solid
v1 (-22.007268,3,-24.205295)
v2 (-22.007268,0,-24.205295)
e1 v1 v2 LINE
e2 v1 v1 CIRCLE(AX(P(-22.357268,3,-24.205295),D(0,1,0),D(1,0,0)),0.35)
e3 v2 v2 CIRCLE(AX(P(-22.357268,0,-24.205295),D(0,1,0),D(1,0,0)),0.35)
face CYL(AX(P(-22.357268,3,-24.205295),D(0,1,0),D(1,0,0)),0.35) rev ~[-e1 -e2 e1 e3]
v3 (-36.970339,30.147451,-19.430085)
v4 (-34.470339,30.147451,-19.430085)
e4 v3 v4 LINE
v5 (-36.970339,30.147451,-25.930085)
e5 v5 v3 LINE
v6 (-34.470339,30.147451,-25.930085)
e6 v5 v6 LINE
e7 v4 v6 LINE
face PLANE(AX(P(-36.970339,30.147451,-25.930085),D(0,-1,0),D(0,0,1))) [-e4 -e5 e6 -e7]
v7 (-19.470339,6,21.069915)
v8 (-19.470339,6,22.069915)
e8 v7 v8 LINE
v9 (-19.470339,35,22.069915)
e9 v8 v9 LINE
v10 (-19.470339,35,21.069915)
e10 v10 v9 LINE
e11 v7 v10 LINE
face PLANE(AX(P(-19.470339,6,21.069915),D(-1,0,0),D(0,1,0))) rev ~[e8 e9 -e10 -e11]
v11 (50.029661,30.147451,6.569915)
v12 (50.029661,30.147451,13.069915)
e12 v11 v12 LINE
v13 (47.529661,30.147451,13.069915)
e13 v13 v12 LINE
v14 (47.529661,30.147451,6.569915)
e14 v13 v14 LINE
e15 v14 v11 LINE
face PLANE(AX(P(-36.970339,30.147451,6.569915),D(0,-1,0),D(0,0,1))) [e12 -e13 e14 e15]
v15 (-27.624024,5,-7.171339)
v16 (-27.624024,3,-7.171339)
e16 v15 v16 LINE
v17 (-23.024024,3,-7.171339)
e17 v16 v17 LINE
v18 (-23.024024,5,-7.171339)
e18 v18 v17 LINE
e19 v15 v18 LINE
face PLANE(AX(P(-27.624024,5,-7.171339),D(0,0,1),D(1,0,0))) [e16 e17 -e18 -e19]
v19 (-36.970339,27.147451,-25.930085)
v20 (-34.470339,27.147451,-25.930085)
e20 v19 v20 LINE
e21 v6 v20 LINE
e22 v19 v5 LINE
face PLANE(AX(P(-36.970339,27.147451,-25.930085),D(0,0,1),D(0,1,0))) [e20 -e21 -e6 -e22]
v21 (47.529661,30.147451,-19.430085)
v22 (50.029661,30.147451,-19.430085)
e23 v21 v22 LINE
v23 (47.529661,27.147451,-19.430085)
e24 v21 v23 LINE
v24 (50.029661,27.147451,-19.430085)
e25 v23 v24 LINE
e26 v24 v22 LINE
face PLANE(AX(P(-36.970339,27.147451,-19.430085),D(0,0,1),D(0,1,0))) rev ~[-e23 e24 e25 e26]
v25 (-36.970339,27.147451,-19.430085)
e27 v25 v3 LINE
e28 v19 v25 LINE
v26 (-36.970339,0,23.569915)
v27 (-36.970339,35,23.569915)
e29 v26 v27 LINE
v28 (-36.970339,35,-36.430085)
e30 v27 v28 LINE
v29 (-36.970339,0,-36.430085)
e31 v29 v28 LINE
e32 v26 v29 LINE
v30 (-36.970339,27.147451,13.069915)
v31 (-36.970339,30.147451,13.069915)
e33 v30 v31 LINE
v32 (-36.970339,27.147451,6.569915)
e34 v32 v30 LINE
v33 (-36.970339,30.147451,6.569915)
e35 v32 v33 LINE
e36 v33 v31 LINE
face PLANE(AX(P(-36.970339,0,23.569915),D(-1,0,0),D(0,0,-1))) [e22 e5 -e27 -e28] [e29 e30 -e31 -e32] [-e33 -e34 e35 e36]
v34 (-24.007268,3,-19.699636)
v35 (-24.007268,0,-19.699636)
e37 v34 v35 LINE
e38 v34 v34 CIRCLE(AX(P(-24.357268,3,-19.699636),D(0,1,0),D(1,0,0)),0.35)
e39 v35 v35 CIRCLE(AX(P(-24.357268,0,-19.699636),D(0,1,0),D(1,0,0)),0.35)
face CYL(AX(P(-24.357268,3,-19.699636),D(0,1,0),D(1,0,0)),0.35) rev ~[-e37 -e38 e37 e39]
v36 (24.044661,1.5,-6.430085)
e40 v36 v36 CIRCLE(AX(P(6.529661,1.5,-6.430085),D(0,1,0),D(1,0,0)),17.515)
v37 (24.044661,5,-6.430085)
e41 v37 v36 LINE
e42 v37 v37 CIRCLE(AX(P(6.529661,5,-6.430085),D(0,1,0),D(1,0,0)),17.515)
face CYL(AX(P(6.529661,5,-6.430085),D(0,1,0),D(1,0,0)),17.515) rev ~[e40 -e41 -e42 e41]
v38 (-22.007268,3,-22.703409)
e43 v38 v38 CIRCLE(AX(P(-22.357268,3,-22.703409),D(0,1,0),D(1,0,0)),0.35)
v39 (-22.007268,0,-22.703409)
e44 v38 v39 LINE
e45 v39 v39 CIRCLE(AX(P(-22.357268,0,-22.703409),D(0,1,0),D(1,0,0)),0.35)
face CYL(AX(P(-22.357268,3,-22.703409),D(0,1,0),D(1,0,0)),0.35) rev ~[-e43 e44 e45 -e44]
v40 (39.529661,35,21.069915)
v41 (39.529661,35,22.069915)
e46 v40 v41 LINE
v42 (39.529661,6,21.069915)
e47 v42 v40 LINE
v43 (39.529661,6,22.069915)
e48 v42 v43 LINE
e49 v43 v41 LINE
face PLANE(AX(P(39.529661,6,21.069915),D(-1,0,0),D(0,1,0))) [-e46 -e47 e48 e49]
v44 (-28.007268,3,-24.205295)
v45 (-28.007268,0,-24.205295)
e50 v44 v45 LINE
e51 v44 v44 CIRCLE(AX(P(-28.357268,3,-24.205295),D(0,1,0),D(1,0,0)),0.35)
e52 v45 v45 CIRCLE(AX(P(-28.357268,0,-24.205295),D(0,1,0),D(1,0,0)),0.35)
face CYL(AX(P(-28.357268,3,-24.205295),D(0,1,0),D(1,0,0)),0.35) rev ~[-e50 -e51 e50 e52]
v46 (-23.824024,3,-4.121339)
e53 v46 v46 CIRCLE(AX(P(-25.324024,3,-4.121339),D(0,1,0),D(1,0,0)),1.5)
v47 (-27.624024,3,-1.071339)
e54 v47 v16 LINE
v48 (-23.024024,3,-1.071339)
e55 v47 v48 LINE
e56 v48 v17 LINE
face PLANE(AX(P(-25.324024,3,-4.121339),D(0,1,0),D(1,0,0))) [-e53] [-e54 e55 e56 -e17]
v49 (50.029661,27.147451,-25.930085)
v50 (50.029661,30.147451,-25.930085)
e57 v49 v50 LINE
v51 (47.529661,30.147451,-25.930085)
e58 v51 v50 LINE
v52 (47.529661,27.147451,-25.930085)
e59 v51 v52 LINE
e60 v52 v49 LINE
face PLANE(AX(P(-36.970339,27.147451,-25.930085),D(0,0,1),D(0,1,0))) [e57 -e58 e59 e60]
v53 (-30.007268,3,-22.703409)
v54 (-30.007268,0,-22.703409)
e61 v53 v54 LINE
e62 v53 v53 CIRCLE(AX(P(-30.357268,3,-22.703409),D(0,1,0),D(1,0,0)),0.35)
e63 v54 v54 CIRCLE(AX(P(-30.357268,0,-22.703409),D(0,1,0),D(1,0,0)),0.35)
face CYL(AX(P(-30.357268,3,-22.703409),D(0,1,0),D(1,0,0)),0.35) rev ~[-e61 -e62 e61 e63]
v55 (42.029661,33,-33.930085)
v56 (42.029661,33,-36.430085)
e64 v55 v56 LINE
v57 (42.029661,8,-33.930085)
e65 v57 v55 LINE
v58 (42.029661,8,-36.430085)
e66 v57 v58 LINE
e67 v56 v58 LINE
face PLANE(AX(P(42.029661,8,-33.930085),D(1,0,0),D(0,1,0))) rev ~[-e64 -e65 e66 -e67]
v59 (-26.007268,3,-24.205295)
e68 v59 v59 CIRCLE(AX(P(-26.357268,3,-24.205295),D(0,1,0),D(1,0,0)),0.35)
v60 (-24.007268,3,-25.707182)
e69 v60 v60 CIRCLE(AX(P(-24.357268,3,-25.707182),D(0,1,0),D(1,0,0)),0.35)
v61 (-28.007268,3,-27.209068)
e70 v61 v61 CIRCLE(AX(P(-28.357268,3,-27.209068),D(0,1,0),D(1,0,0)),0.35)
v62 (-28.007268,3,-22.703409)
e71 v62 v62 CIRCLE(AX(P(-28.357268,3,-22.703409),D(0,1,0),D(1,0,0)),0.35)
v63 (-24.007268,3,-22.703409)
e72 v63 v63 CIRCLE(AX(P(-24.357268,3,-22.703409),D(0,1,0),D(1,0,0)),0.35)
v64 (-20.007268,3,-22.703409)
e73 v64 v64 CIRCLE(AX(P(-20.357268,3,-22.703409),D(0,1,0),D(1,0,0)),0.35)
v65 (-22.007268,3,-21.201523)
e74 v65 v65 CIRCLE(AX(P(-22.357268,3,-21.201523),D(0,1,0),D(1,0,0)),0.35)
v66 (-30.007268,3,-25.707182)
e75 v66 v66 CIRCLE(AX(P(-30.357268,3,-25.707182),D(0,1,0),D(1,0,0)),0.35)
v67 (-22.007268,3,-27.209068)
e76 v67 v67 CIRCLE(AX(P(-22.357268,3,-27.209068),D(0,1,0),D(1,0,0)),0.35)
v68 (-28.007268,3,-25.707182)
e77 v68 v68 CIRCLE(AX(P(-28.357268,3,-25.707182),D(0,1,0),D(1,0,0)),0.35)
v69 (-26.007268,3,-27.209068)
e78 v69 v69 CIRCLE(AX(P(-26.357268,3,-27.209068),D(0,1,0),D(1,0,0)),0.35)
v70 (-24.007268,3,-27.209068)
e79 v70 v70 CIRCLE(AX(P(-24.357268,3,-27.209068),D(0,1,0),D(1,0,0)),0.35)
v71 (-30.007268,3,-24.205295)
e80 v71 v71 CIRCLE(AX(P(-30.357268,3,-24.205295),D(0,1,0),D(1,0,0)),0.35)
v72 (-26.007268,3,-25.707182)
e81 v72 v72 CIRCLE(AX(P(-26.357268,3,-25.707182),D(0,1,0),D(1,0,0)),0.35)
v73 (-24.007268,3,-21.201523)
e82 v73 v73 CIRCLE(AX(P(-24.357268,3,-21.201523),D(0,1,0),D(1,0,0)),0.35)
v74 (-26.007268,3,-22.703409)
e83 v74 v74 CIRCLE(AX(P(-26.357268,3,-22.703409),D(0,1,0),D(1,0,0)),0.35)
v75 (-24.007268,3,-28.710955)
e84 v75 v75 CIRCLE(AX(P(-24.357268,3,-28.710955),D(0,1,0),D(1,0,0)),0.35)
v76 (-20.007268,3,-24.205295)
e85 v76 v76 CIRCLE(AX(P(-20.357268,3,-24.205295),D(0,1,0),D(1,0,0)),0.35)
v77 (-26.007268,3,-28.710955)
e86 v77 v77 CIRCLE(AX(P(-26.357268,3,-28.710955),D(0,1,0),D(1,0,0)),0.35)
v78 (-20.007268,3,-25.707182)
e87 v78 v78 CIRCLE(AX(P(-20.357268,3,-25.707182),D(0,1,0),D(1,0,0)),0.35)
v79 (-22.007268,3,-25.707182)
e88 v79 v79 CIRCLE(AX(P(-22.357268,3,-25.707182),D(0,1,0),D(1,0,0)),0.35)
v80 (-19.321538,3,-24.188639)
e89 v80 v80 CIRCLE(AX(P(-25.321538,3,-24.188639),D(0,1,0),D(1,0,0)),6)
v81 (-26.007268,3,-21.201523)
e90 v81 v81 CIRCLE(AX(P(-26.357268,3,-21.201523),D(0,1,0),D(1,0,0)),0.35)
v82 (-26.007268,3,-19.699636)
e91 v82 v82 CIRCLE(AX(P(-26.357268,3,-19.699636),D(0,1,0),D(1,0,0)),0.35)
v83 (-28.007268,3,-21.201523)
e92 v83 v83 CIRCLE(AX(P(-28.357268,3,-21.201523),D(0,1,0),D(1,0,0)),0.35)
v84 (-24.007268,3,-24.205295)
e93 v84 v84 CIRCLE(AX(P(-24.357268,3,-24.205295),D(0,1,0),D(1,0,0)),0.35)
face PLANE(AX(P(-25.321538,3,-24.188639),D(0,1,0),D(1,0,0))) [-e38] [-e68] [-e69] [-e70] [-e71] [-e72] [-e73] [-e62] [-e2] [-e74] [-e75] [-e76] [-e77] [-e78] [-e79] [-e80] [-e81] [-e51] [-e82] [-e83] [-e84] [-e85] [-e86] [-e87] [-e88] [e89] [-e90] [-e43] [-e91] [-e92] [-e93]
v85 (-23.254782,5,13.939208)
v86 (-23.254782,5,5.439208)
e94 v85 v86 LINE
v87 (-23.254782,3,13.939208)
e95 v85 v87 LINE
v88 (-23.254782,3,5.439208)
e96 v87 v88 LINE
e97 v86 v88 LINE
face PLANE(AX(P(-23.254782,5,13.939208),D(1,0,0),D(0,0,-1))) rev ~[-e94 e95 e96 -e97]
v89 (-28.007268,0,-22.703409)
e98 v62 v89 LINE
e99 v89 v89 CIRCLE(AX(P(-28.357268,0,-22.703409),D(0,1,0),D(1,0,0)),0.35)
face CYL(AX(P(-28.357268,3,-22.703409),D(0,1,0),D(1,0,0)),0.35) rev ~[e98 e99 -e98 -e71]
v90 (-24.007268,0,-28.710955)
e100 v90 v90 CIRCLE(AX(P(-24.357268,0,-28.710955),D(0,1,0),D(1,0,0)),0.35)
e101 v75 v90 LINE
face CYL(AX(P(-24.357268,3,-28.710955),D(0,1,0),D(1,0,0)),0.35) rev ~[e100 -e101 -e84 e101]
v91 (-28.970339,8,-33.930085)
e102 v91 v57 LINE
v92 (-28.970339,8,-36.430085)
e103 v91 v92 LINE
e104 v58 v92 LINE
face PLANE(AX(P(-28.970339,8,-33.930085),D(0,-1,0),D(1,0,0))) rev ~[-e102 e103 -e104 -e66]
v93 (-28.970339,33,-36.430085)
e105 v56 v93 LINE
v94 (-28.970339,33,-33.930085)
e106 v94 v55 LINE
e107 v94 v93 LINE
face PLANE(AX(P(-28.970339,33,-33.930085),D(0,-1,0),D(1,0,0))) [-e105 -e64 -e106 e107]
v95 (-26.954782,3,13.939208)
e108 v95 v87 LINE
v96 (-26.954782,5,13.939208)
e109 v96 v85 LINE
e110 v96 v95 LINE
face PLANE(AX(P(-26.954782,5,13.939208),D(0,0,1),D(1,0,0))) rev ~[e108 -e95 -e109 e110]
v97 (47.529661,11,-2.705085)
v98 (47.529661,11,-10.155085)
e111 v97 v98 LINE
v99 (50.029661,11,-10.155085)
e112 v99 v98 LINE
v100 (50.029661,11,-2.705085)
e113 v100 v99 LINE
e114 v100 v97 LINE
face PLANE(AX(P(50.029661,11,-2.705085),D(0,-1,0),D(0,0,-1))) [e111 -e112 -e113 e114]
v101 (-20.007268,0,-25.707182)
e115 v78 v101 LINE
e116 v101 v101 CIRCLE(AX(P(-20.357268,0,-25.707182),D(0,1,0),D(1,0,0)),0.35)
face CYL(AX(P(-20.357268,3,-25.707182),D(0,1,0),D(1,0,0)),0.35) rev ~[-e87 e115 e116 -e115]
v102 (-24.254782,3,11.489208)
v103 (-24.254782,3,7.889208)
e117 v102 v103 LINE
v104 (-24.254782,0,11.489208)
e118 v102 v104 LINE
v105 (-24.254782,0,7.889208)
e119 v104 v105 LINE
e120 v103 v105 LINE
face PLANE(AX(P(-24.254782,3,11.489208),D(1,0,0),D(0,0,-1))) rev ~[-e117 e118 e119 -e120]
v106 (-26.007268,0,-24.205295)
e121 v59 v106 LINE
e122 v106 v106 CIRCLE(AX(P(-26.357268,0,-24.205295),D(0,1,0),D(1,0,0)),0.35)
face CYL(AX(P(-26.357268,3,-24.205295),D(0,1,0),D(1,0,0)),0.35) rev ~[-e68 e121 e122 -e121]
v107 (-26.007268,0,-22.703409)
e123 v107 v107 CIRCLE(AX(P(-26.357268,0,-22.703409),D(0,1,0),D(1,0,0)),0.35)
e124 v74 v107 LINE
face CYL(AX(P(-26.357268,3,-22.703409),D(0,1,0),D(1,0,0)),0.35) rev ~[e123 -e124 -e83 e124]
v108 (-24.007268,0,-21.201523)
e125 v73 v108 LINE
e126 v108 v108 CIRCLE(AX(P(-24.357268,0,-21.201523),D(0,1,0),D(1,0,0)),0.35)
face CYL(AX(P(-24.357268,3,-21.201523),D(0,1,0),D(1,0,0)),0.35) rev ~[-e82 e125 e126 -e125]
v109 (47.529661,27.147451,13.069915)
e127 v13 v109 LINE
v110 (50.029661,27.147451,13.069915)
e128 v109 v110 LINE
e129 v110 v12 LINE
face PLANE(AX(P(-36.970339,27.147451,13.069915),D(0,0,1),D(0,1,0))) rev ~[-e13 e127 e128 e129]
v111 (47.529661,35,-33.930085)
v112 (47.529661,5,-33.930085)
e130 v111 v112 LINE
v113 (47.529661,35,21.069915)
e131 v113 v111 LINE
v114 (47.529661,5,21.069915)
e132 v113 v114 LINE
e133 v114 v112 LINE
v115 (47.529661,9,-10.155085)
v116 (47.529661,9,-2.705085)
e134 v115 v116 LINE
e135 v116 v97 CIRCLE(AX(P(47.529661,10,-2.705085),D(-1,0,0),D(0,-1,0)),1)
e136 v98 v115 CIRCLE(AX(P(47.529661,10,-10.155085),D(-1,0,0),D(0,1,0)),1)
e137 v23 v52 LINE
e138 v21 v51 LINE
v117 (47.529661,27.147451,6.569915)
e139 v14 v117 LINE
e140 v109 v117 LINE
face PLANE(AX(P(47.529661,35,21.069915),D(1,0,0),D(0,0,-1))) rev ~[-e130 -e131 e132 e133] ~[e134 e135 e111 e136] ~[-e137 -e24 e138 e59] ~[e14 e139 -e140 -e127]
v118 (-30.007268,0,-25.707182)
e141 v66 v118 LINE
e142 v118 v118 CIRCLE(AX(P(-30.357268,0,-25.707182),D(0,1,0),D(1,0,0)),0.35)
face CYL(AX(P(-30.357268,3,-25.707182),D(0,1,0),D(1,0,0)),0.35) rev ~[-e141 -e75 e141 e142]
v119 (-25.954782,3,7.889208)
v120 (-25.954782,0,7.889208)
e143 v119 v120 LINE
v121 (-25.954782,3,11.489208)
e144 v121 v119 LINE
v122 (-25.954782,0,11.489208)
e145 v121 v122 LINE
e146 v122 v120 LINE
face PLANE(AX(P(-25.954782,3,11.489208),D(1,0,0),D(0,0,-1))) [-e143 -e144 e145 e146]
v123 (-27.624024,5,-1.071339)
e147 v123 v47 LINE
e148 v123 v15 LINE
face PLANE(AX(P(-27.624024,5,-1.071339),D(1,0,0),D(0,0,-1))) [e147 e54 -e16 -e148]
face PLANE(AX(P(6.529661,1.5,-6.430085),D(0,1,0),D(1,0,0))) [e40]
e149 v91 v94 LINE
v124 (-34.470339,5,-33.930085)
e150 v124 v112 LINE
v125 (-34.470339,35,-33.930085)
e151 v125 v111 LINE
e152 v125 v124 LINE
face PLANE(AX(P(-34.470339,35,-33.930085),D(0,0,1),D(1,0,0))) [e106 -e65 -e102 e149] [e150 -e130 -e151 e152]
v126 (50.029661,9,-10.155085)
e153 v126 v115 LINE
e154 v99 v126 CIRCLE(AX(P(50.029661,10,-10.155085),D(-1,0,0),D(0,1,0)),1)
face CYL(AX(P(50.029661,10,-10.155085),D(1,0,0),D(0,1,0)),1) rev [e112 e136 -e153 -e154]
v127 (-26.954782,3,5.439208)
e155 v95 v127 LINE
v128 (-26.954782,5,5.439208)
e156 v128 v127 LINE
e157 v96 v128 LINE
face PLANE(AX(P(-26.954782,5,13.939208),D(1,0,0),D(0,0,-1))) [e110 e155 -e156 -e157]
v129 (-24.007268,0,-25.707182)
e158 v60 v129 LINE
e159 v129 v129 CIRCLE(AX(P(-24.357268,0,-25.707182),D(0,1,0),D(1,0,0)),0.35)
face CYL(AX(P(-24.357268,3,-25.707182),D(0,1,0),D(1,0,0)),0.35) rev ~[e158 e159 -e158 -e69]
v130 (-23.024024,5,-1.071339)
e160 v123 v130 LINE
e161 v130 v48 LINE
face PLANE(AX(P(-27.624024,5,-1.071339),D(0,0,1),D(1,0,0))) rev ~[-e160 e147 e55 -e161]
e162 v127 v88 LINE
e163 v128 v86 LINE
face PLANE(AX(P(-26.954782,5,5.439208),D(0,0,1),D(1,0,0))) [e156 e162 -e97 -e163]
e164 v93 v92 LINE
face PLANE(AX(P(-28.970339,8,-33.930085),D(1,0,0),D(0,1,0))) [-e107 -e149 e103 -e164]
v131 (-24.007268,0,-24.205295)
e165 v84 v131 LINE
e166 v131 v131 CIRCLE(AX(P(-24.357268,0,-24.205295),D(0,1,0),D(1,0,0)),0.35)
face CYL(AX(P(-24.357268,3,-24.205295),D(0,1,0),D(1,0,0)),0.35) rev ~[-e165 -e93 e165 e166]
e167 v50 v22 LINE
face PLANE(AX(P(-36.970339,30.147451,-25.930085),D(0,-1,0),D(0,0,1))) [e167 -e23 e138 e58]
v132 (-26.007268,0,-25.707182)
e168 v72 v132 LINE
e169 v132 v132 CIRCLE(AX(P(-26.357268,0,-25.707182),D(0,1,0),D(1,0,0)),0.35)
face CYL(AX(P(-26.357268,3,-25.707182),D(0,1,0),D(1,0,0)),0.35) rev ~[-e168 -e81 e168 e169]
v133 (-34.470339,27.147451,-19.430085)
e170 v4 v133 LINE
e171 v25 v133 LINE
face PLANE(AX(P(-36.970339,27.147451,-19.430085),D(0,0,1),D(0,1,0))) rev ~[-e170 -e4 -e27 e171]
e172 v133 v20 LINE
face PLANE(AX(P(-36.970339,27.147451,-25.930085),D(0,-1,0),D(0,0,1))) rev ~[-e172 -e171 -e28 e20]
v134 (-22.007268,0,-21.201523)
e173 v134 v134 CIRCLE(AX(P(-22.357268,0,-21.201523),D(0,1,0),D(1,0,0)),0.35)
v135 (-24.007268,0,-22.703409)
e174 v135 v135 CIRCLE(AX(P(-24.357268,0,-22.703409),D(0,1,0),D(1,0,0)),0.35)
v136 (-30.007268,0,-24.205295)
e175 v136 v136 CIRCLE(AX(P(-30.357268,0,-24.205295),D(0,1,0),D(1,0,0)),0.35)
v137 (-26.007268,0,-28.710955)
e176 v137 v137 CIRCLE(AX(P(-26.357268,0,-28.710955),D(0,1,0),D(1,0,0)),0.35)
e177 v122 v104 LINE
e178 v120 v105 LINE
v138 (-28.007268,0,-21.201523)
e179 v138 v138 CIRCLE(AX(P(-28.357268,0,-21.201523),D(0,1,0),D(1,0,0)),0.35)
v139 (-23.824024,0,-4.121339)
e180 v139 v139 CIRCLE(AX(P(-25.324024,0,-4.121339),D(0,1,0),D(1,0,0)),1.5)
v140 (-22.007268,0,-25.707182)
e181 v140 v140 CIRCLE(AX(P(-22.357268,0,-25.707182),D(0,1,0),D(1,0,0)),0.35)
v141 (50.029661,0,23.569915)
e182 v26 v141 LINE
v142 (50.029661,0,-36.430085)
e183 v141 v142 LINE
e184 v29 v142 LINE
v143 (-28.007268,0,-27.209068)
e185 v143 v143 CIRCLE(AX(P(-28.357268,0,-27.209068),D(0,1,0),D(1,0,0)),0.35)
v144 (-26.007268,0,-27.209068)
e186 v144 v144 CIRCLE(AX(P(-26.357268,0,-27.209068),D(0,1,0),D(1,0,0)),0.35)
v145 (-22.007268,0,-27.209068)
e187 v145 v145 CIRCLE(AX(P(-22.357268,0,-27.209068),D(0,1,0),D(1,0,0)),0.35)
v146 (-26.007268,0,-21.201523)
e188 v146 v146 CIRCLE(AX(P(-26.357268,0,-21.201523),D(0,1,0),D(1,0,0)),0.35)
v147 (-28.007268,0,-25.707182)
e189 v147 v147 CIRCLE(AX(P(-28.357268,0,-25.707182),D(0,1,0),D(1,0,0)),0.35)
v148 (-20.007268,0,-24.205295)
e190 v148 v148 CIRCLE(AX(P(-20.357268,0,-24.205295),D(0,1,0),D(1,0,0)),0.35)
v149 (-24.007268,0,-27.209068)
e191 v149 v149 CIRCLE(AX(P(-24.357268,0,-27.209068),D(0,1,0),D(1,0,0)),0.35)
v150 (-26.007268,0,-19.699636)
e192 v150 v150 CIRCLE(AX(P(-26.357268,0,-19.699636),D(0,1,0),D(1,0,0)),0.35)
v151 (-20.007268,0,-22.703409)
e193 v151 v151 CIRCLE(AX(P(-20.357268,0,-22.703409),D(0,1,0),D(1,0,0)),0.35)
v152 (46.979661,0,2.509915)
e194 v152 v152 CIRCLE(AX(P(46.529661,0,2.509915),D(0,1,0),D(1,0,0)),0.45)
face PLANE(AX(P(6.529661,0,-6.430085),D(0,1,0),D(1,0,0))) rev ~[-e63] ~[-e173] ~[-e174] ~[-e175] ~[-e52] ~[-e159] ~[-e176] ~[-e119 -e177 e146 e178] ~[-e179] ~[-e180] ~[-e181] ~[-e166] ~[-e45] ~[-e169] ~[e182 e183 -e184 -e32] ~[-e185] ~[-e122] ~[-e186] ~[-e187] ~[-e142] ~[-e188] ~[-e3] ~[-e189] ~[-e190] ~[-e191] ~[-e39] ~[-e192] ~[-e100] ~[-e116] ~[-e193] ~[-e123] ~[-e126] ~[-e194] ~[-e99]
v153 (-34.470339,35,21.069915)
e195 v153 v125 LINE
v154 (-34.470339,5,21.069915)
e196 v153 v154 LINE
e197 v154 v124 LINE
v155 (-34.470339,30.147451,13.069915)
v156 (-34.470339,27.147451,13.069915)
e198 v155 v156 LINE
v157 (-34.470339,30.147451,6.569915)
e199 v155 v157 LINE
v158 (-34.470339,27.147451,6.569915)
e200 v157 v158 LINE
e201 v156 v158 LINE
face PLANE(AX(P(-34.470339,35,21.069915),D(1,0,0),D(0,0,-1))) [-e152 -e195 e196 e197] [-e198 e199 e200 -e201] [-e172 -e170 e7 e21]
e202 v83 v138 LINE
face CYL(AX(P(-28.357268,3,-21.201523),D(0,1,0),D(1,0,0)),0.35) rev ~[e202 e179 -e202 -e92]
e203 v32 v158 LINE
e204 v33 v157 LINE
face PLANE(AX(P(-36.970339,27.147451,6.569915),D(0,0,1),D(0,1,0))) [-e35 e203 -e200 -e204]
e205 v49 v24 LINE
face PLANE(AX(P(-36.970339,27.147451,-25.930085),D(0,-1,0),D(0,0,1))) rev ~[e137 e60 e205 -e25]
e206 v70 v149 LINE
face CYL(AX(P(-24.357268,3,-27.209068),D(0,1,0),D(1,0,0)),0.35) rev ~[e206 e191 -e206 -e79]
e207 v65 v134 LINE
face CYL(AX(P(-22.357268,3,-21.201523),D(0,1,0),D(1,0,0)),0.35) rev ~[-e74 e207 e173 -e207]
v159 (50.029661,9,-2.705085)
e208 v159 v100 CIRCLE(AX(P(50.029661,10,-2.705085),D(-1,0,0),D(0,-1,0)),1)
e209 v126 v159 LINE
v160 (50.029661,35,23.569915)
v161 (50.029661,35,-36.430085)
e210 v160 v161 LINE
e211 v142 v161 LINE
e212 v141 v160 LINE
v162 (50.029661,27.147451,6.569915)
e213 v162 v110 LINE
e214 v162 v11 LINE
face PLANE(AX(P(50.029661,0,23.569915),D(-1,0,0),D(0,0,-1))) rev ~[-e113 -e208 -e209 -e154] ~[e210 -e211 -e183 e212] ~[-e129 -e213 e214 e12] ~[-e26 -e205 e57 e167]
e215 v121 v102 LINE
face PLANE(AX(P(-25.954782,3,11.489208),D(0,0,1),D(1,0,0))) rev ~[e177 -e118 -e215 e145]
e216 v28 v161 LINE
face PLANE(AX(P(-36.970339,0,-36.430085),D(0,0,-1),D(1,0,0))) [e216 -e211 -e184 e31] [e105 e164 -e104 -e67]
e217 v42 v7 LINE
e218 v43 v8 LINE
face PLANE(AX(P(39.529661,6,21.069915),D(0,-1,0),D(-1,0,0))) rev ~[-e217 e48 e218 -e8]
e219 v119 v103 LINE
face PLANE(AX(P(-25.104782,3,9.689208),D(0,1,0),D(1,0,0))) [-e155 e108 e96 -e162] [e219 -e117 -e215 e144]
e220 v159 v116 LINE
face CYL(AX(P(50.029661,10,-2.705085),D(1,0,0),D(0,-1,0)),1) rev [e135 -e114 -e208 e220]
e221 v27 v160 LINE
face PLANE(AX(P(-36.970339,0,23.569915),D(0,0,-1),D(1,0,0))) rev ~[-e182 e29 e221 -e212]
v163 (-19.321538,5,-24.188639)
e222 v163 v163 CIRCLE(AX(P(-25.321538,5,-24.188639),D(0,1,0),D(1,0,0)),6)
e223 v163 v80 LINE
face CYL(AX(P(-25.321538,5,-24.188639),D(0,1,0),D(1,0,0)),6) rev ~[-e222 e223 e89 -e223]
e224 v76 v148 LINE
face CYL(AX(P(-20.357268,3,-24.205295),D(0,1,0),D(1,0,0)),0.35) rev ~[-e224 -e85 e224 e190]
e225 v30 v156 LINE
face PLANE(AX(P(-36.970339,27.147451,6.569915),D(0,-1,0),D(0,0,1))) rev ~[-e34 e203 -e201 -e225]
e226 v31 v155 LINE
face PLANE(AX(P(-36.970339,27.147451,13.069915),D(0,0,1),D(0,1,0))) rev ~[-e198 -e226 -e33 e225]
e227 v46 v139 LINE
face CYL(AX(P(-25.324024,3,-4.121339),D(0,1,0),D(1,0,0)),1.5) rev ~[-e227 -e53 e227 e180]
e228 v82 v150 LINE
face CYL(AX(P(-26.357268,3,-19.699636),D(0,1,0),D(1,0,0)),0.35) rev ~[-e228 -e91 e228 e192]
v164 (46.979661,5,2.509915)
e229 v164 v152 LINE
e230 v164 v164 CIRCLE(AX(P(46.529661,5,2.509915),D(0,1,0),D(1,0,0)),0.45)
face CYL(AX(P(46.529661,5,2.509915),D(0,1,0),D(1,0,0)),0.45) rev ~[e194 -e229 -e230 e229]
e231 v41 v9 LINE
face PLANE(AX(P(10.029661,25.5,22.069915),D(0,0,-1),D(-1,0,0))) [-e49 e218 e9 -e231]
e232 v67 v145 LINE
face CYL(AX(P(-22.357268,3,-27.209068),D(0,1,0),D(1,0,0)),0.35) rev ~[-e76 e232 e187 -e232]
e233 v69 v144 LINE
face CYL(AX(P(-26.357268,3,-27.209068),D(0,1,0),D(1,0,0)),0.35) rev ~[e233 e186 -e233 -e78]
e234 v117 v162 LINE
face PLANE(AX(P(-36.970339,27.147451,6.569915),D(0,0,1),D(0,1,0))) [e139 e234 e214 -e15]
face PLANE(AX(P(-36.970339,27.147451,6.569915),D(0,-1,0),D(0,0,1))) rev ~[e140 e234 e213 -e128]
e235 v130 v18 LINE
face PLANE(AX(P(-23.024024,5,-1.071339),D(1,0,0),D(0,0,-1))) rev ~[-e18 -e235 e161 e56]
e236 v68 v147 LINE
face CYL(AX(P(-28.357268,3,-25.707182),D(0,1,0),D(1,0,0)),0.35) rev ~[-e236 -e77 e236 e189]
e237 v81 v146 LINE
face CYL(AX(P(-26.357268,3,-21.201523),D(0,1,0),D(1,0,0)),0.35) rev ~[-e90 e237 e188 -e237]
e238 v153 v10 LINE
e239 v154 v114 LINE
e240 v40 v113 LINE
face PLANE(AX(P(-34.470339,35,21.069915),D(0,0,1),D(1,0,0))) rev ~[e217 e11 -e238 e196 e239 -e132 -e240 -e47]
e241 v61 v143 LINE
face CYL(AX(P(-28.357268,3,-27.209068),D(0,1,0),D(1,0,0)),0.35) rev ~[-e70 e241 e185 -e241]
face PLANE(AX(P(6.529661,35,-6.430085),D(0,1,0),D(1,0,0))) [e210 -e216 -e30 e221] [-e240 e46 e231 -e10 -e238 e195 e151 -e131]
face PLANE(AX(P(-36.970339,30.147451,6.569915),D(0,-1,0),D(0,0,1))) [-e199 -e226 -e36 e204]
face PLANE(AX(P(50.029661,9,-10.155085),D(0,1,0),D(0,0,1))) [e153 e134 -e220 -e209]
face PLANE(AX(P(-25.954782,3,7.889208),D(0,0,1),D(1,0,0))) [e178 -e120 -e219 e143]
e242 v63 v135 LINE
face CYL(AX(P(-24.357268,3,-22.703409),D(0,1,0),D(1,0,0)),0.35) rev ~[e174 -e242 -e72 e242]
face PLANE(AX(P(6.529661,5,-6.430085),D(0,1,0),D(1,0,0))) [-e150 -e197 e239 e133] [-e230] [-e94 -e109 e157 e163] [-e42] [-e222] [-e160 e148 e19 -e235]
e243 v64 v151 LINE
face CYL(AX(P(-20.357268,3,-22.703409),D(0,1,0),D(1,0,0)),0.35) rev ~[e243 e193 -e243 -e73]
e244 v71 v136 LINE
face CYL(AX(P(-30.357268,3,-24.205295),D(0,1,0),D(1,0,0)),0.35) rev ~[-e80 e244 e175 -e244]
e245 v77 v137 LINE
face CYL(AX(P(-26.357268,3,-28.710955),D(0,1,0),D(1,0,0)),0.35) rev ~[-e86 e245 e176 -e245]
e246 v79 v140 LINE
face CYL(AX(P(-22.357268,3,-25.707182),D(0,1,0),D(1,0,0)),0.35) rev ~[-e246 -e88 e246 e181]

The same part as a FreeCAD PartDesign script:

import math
import FreeCAD as App
import Part
import Sketcher

doc = App.newDocument("Part")
body = doc.addObject("PartDesign::Body", "Body")

# Sketch on XZ plane
sketch1 = doc.addObject("Sketcher::SketchObject", "Sketch")
body.addObject(sketch1)
sketch1.AttachmentSupport = (doc.XZ_Plane, [""])
sketch1.MapMode = "FlatFace"
sketch1.addGeometry(Part.LineSegment(App.Vector(-37, -36, 0), App.Vector(-37, 24, 0)), False)
sketch1.addGeometry(Part.LineSegment(App.Vector(-37, 24, 0), App.Vector(50, 24, 0)), False)
sketch1.addGeometry(Part.LineSegment(App.Vector(50, 24, 0), App.Vector(50, -36, 0)), False)
sketch1.addGeometry(Part.LineSegment(App.Vector(50, -36, 0), App.Vector(-37, -36, 0)), False)
sketch1.addConstraint(Sketcher.Constraint("Coincident", 0, 2, 1, 1))
sketch1.addConstraint(Sketcher.Constraint("Coincident", 1, 2, 2, 1))
sketch1.addConstraint(Sketcher.Constraint("Coincident", 2, 2, 3, 1))
sketch1.addConstraint(Sketcher.Constraint("Coincident", 3, 2, 0, 1))
sketch1.addConstraint(Sketcher.Constraint("Vertical", 0))
sketch1.addConstraint(Sketcher.Constraint("Horizontal", 1))
sketch1.addConstraint(Sketcher.Constraint("Vertical", 2))
sketch1.addConstraint(Sketcher.Constraint("Horizontal", 3))
sketch1.addConstraint(Sketcher.Constraint("DistanceX", 1, 1, 1, 2, 87.0))
sketch1.addConstraint(Sketcher.Constraint("DistanceY", 0, 1, 0, 2, 60.0))
sketch1.addConstraint(Sketcher.Constraint("DistanceX", 0, 2, -1, 1, 36.970339))
sketch1.addConstraint(Sketcher.Constraint("DistanceY", -1, 1, 0, 2, 23.569915))
pad1 = doc.addObject("PartDesign::Pad", "Pad")
body.addObject(pad1)
pad1.Profile = sketch1
pad1.Length = 35
pad1.Reversed = True

# Sketch on XZ plane
sketch2 = doc.addObject("Sketcher::SketchObject", "Sketch001")
body.addObject(sketch2)
sketch2.AttachmentSupport = (doc.XZ_Plane, [""])
sketch2.MapMode = "FlatFace"
sketch2.AttachmentOffset = App.Placement(App.Vector(0, 0, -35), App.Rotation())
sketch2.addGeometry(Part.LineSegment(App.Vector(-34, -34, 0), App.Vector(-34, 21, 0)), False)
sketch2.addGeometry(Part.LineSegment(App.Vector(-34, 21, 0), App.Vector(48, 21, 0)), False)
sketch2.addGeometry(Part.LineSegment(App.Vector(48, 21, 0), App.Vector(48, -34, 0)), False)
sketch2.addGeometry(Part.LineSegment(App.Vector(48, -34, 0), App.Vector(-34, -34, 0)), False)
sketch2.addConstraint(Sketcher.Constraint("Coincident", 0, 2, 1, 1))
sketch2.addConstraint(Sketcher.Constraint("Coincident", 1, 2, 2, 1))
sketch2.addConstraint(Sketcher.Constraint("Coincident", 2, 2, 3, 1))
sketch2.addConstraint(Sketcher.Constraint("Coincident", 3, 2, 0, 1))
sketch2.addConstraint(Sketcher.Constraint("Vertical", 0))
sketch2.addConstraint(Sketcher.Constraint("Horizontal", 1))
sketch2.addConstraint(Sketcher.Constraint("Vertical", 2))
sketch2.addConstraint(Sketcher.Constraint("Horizontal", 3))
sketch2.addConstraint(Sketcher.Constraint("DistanceX", 1, 1, 1, 2, 82.0))
sketch2.addConstraint(Sketcher.Constraint("DistanceY", 0, 1, 0, 2, 55.0))
sketch2.addConstraint(Sketcher.Constraint("DistanceX", 0, 2, -1, 1, 34.470339))
sketch2.addConstraint(Sketcher.Constraint("DistanceY", -1, 1, 0, 2, 21.069915))
pocket1 = doc.addObject("PartDesign::Pocket", "Pocket")
body.addObject(pocket1)
pocket1.Profile = sketch2
pocket1.Length = 30
pocket1.Reversed = True

# Sketch on XZ plane
sketch3 = doc.addObject("Sketcher::SketchObject", "Sketch002")
body.addObject(sketch3)
sketch3.AttachmentSupport = (doc.XZ_Plane, [""])
sketch3.MapMode = "FlatFace"
sketch3.AttachmentOffset = App.Placement(App.Vector(0, 0, -5), App.Rotation())
sketch3.addGeometry(Part.LineSegment(App.Vector(-27, 5.4, 0), App.Vector(-27, 13.9, 0)), False)
sketch3.addGeometry(Part.LineSegment(App.Vector(-27, 13.9, 0), App.Vector(-23.3, 13.9, 0)), False)
sketch3.addGeometry(Part.LineSegment(App.Vector(-23.3, 13.9, 0), App.Vector(-23.3, 5.4, 0)), False)
sketch3.addGeometry(Part.LineSegment(App.Vector(-23.3, 5.4, 0), App.Vector(-27, 5.4, 0)), False)
sketch3.addConstraint(Sketcher.Constraint("Coincident", 0, 2, 1, 1))
sketch3.addConstraint(Sketcher.Constraint("Coincident", 1, 2, 2, 1))
sketch3.addConstraint(Sketcher.Constraint("Coincident", 2, 2, 3, 1))
sketch3.addConstraint(Sketcher.Constraint("Coincident", 3, 2, 0, 1))
sketch3.addConstraint(Sketcher.Constraint("Vertical", 0))
sketch3.addConstraint(Sketcher.Constraint("Horizontal", 1))
sketch3.addConstraint(Sketcher.Constraint("Vertical", 2))
sketch3.addConstraint(Sketcher.Constraint("Horizontal", 3))
sketch3.addConstraint(Sketcher.Constraint("DistanceX", 1, 1, 1, 2, 3.7))
sketch3.addConstraint(Sketcher.Constraint("DistanceY", 0, 1, 0, 2, 8.5))
sketch3.addConstraint(Sketcher.Constraint("DistanceX", 0, 2, -1, 1, 26.954782))
sketch3.addConstraint(Sketcher.Constraint("DistanceY", -1, 1, 0, 2, 13.939208))
pocket2 = doc.addObject("PartDesign::Pocket", "Pocket001")
body.addObject(pocket2)
pocket2.Profile = sketch3
pocket2.Length = 2
pocket2.Reversed = True

# Sketch on XZ plane
sketch4 = doc.addObject("Sketcher::SketchObject", "Sketch003")
body.addObject(sketch4)
sketch4.AttachmentSupport = (doc.XZ_Plane, [""])
sketch4.MapMode = "FlatFace"
sketch4.AttachmentOffset = App.Placement(App.Vector(0, 0, -3), App.Rotation())
sketch4.addGeometry(Part.LineSegment(App.Vector(-26, 7.9, 0), App.Vector(-26, 11.5, 0)), False)
sketch4.addGeometry(Part.LineSegment(App.Vector(-26, 11.5, 0), App.Vector(-24.3, 11.5, 0)), False)
sketch4.addGeometry(Part.LineSegment(App.Vector(-24.3, 11.5, 0), App.Vector(-24.3, 7.9, 0)), False)
sketch4.addGeometry(Part.LineSegment(App.Vector(-24.3, 7.9, 0), App.Vector(-26, 7.9, 0)), False)
sketch4.addConstraint(Sketcher.Constraint("Coincident", 0, 2, 1, 1))
sketch4.addConstraint(Sketcher.Constraint("Coincident", 1, 2, 2, 1))
sketch4.addConstraint(Sketcher.Constraint("Coincident", 2, 2, 3, 1))
sketch4.addConstraint(Sketcher.Constraint("Coincident", 3, 2, 0, 1))
sketch4.addConstraint(Sketcher.Constraint("Vertical", 0))
sketch4.addConstraint(Sketcher.Constraint("Horizontal", 1))
sketch4.addConstraint(Sketcher.Constraint("Vertical", 2))
sketch4.addConstraint(Sketcher.Constraint("Horizontal", 3))
sketch4.addConstraint(Sketcher.Constraint("DistanceX", 1, 1, 1, 2, 1.7))
sketch4.addConstraint(Sketcher.Constraint("DistanceY", 0, 1, 0, 2, 3.6))
sketch4.addConstraint(Sketcher.Constraint("DistanceX", 0, 2, -1, 1, 25.954782))
sketch4.addConstraint(Sketcher.Constraint("DistanceY", -1, 1, 0, 2, 11.489208))
pocket3 = doc.addObject("PartDesign::Pocket", "Pocket002")
body.addObject(pocket3)
pocket3.Profile = sketch4
pocket3.Type = "ThroughAll"
pocket3.Reversed = True

# Sketch on XZ plane
sketch5 = doc.addObject("Sketcher::SketchObject", "Sketch004")
body.addObject(sketch5)
sketch5.AttachmentSupport = (doc.XZ_Plane, [""])
sketch5.MapMode = "FlatFace"
sketch5.AttachmentOffset = App.Placement(App.Vector(0, 0, -5), App.Rotation())
sketch5.addGeometry(Part.Circle(App.Vector(-25, -24, 0), App.Vector(0, 0, 1), 6), False)
sketch5.addConstraint(Sketcher.Constraint("Diameter", 0, 12.0))
sketch5.addConstraint(Sketcher.Constraint("DistanceX", 0, 3, -1, 1, 25.321538))
sketch5.addConstraint(Sketcher.Constraint("DistanceY", 0, 3, -1, 1, 24.188639))
pocket4 = doc.addObject("PartDesign::Pocket", "Pocket003")
body.addObject(pocket4)
pocket4.Profile = sketch5
pocket4.Length = 2
pocket4.Reversed = True

# Sketch on XZ plane
sketch6 = doc.addObject("Sketcher::SketchObject", "Sketch005")
body.addObject(sketch6)
sketch6.AttachmentSupport = (doc.XZ_Plane, [""])
sketch6.MapMode = "FlatFace"
sketch6.AttachmentOffset = App.Placement(App.Vector(0, 0, -3), App.Rotation())
sketch6.addGeometry(Part.Circle(App.Vector(-24.36, -28.71, 0), App.Vector(0, 0, 1), 0.35), False)
sketch6.addGeometry(Part.Circle(App.Vector(-26.36, -27.21, 0), App.Vector(0, 0, 1), 0.35), False)
sketch6.addGeometry(Part.Circle(App.Vector(-28.36, -27.21, 0), App.Vector(0, 0, 1), 0.35), False)
sketch6.addGeometry(Part.Circle(App.Vector(-30.36, -25.71, 0), App.Vector(0, 0, 1), 0.35), False)
sketch6.addGeometry(Part.Circle(App.Vector(-30.36, -24.21, 0), App.Vector(0, 0, 1), 0.35), False)
sketch6.addGeometry(Part.Circle(App.Vector(-30.36, -22.7, 0), App.Vector(0, 0, 1), 0.35), False)
sketch6.addGeometry(Part.Circle(App.Vector(-28.36, -24.21, 0), App.Vector(0, 0, 1), 0.35), False)
sketch6.addGeometry(Part.Circle(App.Vector(-28.36, -25.71, 0), App.Vector(0, 0, 1), 0.35), False)
sketch6.addGeometry(Part.Circle(App.Vector(-28.36, -22.7, 0), App.Vector(0, 0, 1), 0.35), False)
sketch6.addGeometry(Part.Circle(App.Vector(-28.36, -21.2, 0), App.Vector(0, 0, 1), 0.35), False)
sketch6.addGeometry(Part.Circle(App.Vector(-26.36, -24.21, 0), App.Vector(0, 0, 1), 0.35), False)
sketch6.addGeometry(Part.Circle(App.Vector(-26.36, -25.71, 0), App.Vector(0, 0, 1), 0.35), False)
sketch6.addGeometry(Part.Circle(App.Vector(-26.36, -22.7, 0), App.Vector(0, 0, 1), 0.35), False)
sketch6.addGeometry(Part.Circle(App.Vector(-26.36, -21.2, 0), App.Vector(0, 0, 1), 0.35), False)
sketch6.addGeometry(Part.Circle(App.Vector(-26.36, -19.7, 0), App.Vector(0, 0, 1), 0.35), False)
sketch6.addGeometry(Part.Circle(App.Vector(-24.36, -19.7, 0), App.Vector(0, 0, 1), 0.35), False)
sketch6.addGeometry(Part.Circle(App.Vector(-24.36, -21.2, 0), App.Vector(0, 0, 1), 0.35), False)
sketch6.addGeometry(Part.Circle(App.Vector(-24.36, -22.7, 0), App.Vector(0, 0, 1), 0.35), False)
sketch6.addGeometry(Part.Circle(App.Vector(-24.36, -24.21, 0), App.Vector(0, 0, 1), 0.35), False)
sketch6.addGeometry(Part.Circle(App.Vector(-24.36, -25.71, 0), App.Vector(0, 0, 1), 0.35), False)
sketch6.addGeometry(Part.Circle(App.Vector(-24.36, -27.21, 0), App.Vector(0, 0, 1), 0.35), False)
sketch6.addGeometry(Part.Circle(App.Vector(-22.36, -27.21, 0), App.Vector(0, 0, 1), 0.35), False)
sketch6.addGeometry(Part.Circle(App.Vector(-22.36, -25.71, 0), App.Vector(0, 0, 1), 0.35), False)
sketch6.addGeometry(Part.Circle(App.Vector(-22.36, -24.21, 0), App.Vector(0, 0, 1), 0.35), False)
sketch6.addGeometry(Part.Circle(App.Vector(-22.36, -22.7, 0), App.Vector(0, 0, 1), 0.35), False)
sketch6.addGeometry(Part.Circle(App.Vector(-22.36, -21.2, 0), App.Vector(0, 0, 1), 0.35), False)
sketch6.addGeometry(Part.Circle(App.Vector(-20.36, -22.7, 0), App.Vector(0, 0, 1), 0.35), False)
sketch6.addGeometry(Part.Circle(App.Vector(-20.36, -24.21, 0), App.Vector(0, 0, 1), 0.35), False)
sketch6.addGeometry(Part.Circle(App.Vector(-20.36, -25.71, 0), App.Vector(0, 0, 1), 0.35), False)
sketch6.addGeometry(Part.Circle(App.Vector(-26.36, -28.71, 0), App.Vector(0, 0, 1), 0.35), False)
sketch6.addConstraint(Sketcher.Constraint("Equal", 0, 1))
sketch6.addConstraint(Sketcher.Constraint("Equal", 1, 2))
sketch6.addConstraint(Sketcher.Constraint("Equal", 2, 3))
sketch6.addConstraint(Sketcher.Constraint("Equal", 3, 4))
sketch6.addConstraint(Sketcher.Constraint("Equal", 4, 5))
sketch6.addConstraint(Sketcher.Constraint("Equal", 5, 6))
sketch6.addConstraint(Sketcher.Constraint("Equal", 6, 7))
sketch6.addConstraint(Sketcher.Constraint("Equal", 7, 8))
sketch6.addConstraint(Sketcher.Constraint("Equal", 8, 9))
sketch6.addConstraint(Sketcher.Constraint("Equal", 9, 10))
sketch6.addConstraint(Sketcher.Constraint("Equal", 10, 11))
sketch6.addConstraint(Sketcher.Constraint("Equal", 11, 12))
sketch6.addConstraint(Sketcher.Constraint("Equal", 12, 13))
sketch6.addConstraint(Sketcher.Constraint("Equal", 13, 14))
sketch6.addConstraint(Sketcher.Constraint("Equal", 14, 15))
sketch6.addConstraint(Sketcher.Constraint("Equal", 15, 16))
sketch6.addConstraint(Sketcher.Constraint("Equal", 16, 17))
sketch6.addConstraint(Sketcher.Constraint("Equal", 17, 18))
sketch6.addConstraint(Sketcher.Constraint("Equal", 18, 19))
sketch6.addConstraint(Sketcher.Constraint("Equal", 19, 20))
sketch6.addConstraint(Sketcher.Constraint("Equal", 20, 21))
sketch6.addConstraint(Sketcher.Constraint("Equal", 21, 22))
sketch6.addConstraint(Sketcher.Constraint("Equal", 22, 23))
sketch6.addConstraint(Sketcher.Constraint("Equal", 23, 24))
sketch6.addConstraint(Sketcher.Constraint("Equal", 24, 25))
sketch6.addConstraint(Sketcher.Constraint("Equal", 25, 26))
sketch6.addConstraint(Sketcher.Constraint("Equal", 26, 27))
sketch6.addConstraint(Sketcher.Constraint("Equal", 27, 28))
sketch6.addConstraint(Sketcher.Constraint("Equal", 28, 29))
sketch6.addConstraint(Sketcher.Constraint("Horizontal", 1, 3, 2, 3))
sketch6.addConstraint(Sketcher.Constraint("Horizontal", 4, 3, 6, 3))
sketch6.addConstraint(Sketcher.Constraint("Horizontal", 3, 3, 7, 3))
sketch6.addConstraint(Sketcher.Constraint("Horizontal", 5, 3, 8, 3))
sketch6.addConstraint(Sketcher.Constraint("Horizontal", 6, 3, 10, 3))
sketch6.addConstraint(Sketcher.Constraint("Horizontal", 7, 3, 11, 3))
sketch6.addConstraint(Sketcher.Constraint("Horizontal", 8, 3, 12, 3))
sketch6.addConstraint(Sketcher.Constraint("Horizontal", 9, 3, 13, 3))
sketch6.addConstraint(Sketcher.Constraint("Horizontal", 14, 3, 15, 3))
sketch6.addConstraint(Sketcher.Constraint("Horizontal", 13, 3, 16, 3))
sketch6.addConstraint(Sketcher.Constraint("Horizontal", 12, 3, 17, 3))
sketch6.addConstraint(Sketcher.Constraint("Horizontal", 10, 3, 18, 3))
sketch6.addConstraint(Sketcher.Constraint("Horizontal", 11, 3, 19, 3))
sketch6.addConstraint(Sketcher.Constraint("Horizontal", 2, 3, 20, 3))
sketch6.addConstraint(Sketcher.Constraint("Horizontal", 20, 3, 21, 3))
sketch6.addConstraint(Sketcher.Constraint("Horizontal", 19, 3, 22, 3))
sketch6.addConstraint(Sketcher.Constraint("Horizontal", 18, 3, 23, 3))
sketch6.addConstraint(Sketcher.Constraint("Horizontal", 17, 3, 24, 3))
sketch6.addConstraint(Sketcher.Constraint("Horizontal", 16, 3, 25, 3))
sketch6.addConstraint(Sketcher.Constraint("Horizontal", 24, 3, 26, 3))
sketch6.addConstraint(Sketcher.Constraint("Horizontal", 23, 3, 27, 3))
sketch6.addConstraint(Sketcher.Constraint("Horizontal", 22, 3, 28, 3))
sketch6.addConstraint(Sketcher.Constraint("Horizontal", 0, 3, 29, 3))
sketch6.addConstraint(Sketcher.Constraint("Vertical", 3, 3, 4, 3))
sketch6.addConstraint(Sketcher.Constraint("Vertical", 4, 3, 5, 3))
sketch6.addConstraint(Sketcher.Constraint("Vertical", 2, 3, 6, 3))
sketch6.addConstraint(Sketcher.Constraint("Vertical", 6, 3, 7, 3))
sketch6.addConstraint(Sketcher.Constraint("Vertical", 7, 3, 8, 3))
sketch6.addConstraint(Sketcher.Constraint("Vertical", 8, 3, 9, 3))
sketch6.addConstraint(Sketcher.Constraint("Vertical", 1, 3, 10, 3))
sketch6.addConstraint(Sketcher.Constraint("Vertical", 10, 3, 11, 3))
sketch6.addConstraint(Sketcher.Constraint("Vertical", 11, 3, 12, 3))
sketch6.addConstraint(Sketcher.Constraint("Vertical", 12, 3, 13, 3))
sketch6.addConstraint(Sketcher.Constraint("Vertical", 13, 3, 14, 3))
sketch6.addConstraint(Sketcher.Constraint("Vertical", 0, 3, 15, 3))
sketch6.addConstraint(Sketcher.Constraint("Vertical", 15, 3, 16, 3))
sketch6.addConstraint(Sketcher.Constraint("Vertical", 16, 3, 17, 3))
sketch6.addConstraint(Sketcher.Constraint("Vertical", 17, 3, 18, 3))
sketch6.addConstraint(Sketcher.Constraint("Vertical", 18, 3, 19, 3))
sketch6.addConstraint(Sketcher.Constraint("Vertical", 19, 3, 20, 3))
sketch6.addConstraint(Sketcher.Constraint("Vertical", 21, 3, 22, 3))
sketch6.addConstraint(Sketcher.Constraint("Vertical", 22, 3, 23, 3))
sketch6.addConstraint(Sketcher.Constraint("Vertical", 23, 3, 24, 3))
sketch6.addConstraint(Sketcher.Constraint("Vertical", 24, 3, 25, 3))
sketch6.addConstraint(Sketcher.Constraint("Vertical", 26, 3, 27, 3))
sketch6.addConstraint(Sketcher.Constraint("Vertical", 27, 3, 28, 3))
sketch6.addConstraint(Sketcher.Constraint("Vertical", 14, 3, 29, 3))
sketch6.addConstraint(Sketcher.Constraint("Diameter", 0, 0.7))
sketch6.addConstraint(Sketcher.Constraint("DistanceX", 1, 3, 0, 3, 2.0))
sketch6.addConstraint(Sketcher.Constraint("DistanceX", 2, 3, 1, 3, 2.0))
sketch6.addConstraint(Sketcher.Constraint("DistanceX", 3, 3, 2, 3, 2.0))
sketch6.addConstraint(Sketcher.Constraint("DistanceX", 20, 3, 21, 3, 2.0))
sketch6.addConstraint(Sketcher.Constraint("DistanceX", 24, 3, 26, 3, 2.0))
sketch6.addConstraint(Sketcher.Constraint("DistanceX", 0, 3, -1, 1, 24.357268))
sketch6.addConstraint(Sketcher.Constraint("DistanceY", 1, 3, -1, 1, 27.209068))
sketch6.addConstraint(Sketcher.Constraint("DistanceY", 3, 3, -1, 1, 25.707182))
sketch6.addConstraint(Sketcher.Constraint("DistanceY", 5, 3, -1, 1, 22.703409))
sketch6.addConstraint(Sketcher.Constraint("DistanceY", 0, 3, 4, 3, 4.505659))
sketch6.addConstraint(Sketcher.Constraint("DistanceY", 7, 3, 9, 3, 4.505659))
sketch6.addConstraint(Sketcher.Constraint("DistanceY", 10, 3, 14, 3, 4.505659))
sketch6.addConstraint(Sketcher.Constraint("DistanceY", 0, 3, -1, 1, 28.710955))
pocket5 = doc.addObject("PartDesign::Pocket", "Pocket004")
body.addObject(pocket5)
pocket5.Profile = sketch6
pocket5.Type = "ThroughAll"
pocket5.Reversed = True

# Sketch on XZ plane
sketch7 = doc.addObject("Sketcher::SketchObject", "Sketch006")
body.addObject(sketch7)
sketch7.AttachmentSupport = (doc.XZ_Plane, [""])
sketch7.MapMode = "FlatFace"
sketch7.AttachmentOffset = App.Placement(App.Vector(0, 0, -5), App.Rotation())
sketch7.addGeometry(Part.LineSegment(App.Vector(-27.6, -7.2, 0), App.Vector(-27.6, -1.1, 0)), False)
sketch7.addGeometry(Part.LineSegment(App.Vector(-27.6, -1.1, 0), App.Vector(-23, -1.1, 0)), False)
sketch7.addGeometry(Part.LineSegment(App.Vector(-23, -1.1, 0), App.Vector(-23, -7.2, 0)), False)
sketch7.addGeometry(Part.LineSegment(App.Vector(-23, -7.2, 0), App.Vector(-27.6, -7.2, 0)), False)
sketch7.addConstraint(Sketcher.Constraint("Coincident", 0, 2, 1, 1))
sketch7.addConstraint(Sketcher.Constraint("Coincident", 1, 2, 2, 1))
sketch7.addConstraint(Sketcher.Constraint("Coincident", 2, 2, 3, 1))
sketch7.addConstraint(Sketcher.Constraint("Coincident", 3, 2, 0, 1))
sketch7.addConstraint(Sketcher.Constraint("Vertical", 0))
sketch7.addConstraint(Sketcher.Constraint("Horizontal", 1))
sketch7.addConstraint(Sketcher.Constraint("Vertical", 2))
sketch7.addConstraint(Sketcher.Constraint("Horizontal", 3))
sketch7.addConstraint(Sketcher.Constraint("DistanceX", 1, 1, 1, 2, 4.6))
sketch7.addConstraint(Sketcher.Constraint("DistanceY", 0, 1, 0, 2, 6.1))
sketch7.addConstraint(Sketcher.Constraint("DistanceY", 0, 2, -1, 1, 1.071339))
sketch7.addConstraint(Sketcher.Constraint("DistanceX", 0, 2, -1, 1, 27.624024))
pocket6 = doc.addObject("PartDesign::Pocket", "Pocket005")
body.addObject(pocket6)
pocket6.Profile = sketch7
pocket6.Length = 2
pocket6.Reversed = True

# Sketch on XZ plane
sketch8 = doc.addObject("Sketcher::SketchObject", "Sketch007")
body.addObject(sketch8)
sketch8.AttachmentSupport = (doc.XZ_Plane, [""])
sketch8.MapMode = "FlatFace"
sketch8.AttachmentOffset = App.Placement(App.Vector(0, 0, -3), App.Rotation())
sketch8.addGeometry(Part.Circle(App.Vector(-25.3, -4.1, 0), App.Vector(0, 0, 1), 1.5), False)
sketch8.addConstraint(Sketcher.Constraint("Diameter", 0, 3.0))
sketch8.addConstraint(Sketcher.Constraint("DistanceY", 0, 3, -1, 1, 4.121339))
sketch8.addConstraint(Sketcher.Constraint("DistanceX", 0, 3, -1, 1, 25.324024))
pocket7 = doc.addObject("PartDesign::Pocket", "Pocket006")
body.addObject(pocket7)
pocket7.Profile = sketch8
pocket7.Type = "ThroughAll"
pocket7.Reversed = True

# Sketch on XZ plane
sketch9 = doc.addObject("Sketcher::SketchObject", "Sketch008")
body.addObject(sketch9)
sketch9.AttachmentSupport = (doc.XZ_Plane, [""])
sketch9.MapMode = "FlatFace"
sketch9.AttachmentOffset = App.Placement(App.Vector(0, 0, -5), App.Rotation())
sketch9.addGeometry(Part.Circle(App.Vector(7, -6, 0), App.Vector(0, 0, 1), 18), False)
sketch9.addConstraint(Sketcher.Constraint("Diameter", 0, 35.03))
sketch9.addConstraint(Sketcher.Constraint("DistanceX", -1, 1, 0, 3, 6.529661))
sketch9.addConstraint(Sketcher.Constraint("DistanceY", 0, 3, -1, 1, 6.430085))
pocket8 = doc.addObject("PartDesign::Pocket", "Pocket007")
body.addObject(pocket8)
pocket8.Profile = sketch9
pocket8.Length = 3.5
pocket8.Reversed = True

# Sketch on XY plane
sketch10 = doc.addObject("Sketcher::SketchObject", "Sketch009")
body.addObject(sketch10)
sketch10.AttachmentSupport = (doc.XY_Plane, [""])
sketch10.MapMode = "FlatFace"
sketch10.AttachmentOffset = App.Placement(App.Vector(0, 0, 21.069915), App.Rotation())
sketch10.addGeometry(Part.LineSegment(App.Vector(40, 45, 0), App.Vector(40, 6, 0)), False)
sketch10.addGeometry(Part.LineSegment(App.Vector(40, 6, 0), App.Vector(-19, 6, 0)), False)
sketch10.addGeometry(Part.LineSegment(App.Vector(-19, 6, 0), App.Vector(-19, 45, 0)), False)
sketch10.addGeometry(Part.LineSegment(App.Vector(-19, 45, 0), App.Vector(40, 45, 0)), False)
sketch10.addConstraint(Sketcher.Constraint("Coincident", 0, 2, 1, 1))
sketch10.addConstraint(Sketcher.Constraint("Coincident", 1, 2, 2, 1))
sketch10.addConstraint(Sketcher.Constraint("Coincident", 2, 2, 3, 1))
sketch10.addConstraint(Sketcher.Constraint("Coincident", 3, 2, 0, 1))
sketch10.addConstraint(Sketcher.Constraint("Vertical", 0))
sketch10.addConstraint(Sketcher.Constraint("Horizontal", 1))
sketch10.addConstraint(Sketcher.Constraint("Vertical", 2))
sketch10.addConstraint(Sketcher.Constraint("Horizontal", 3))
sketch10.addConstraint(Sketcher.Constraint("DistanceX", 1, 2, 1, 1, 59.0))
sketch10.addConstraint(Sketcher.Constraint("DistanceY", 0, 2, 0, 1, 39.0))
sketch10.addConstraint(Sketcher.Constraint("DistanceY", -1, 1, 0, 2, 6.0))
sketch10.addConstraint(Sketcher.Constraint("DistanceX", -1, 1, 0, 2, 39.529661))
pocket9 = doc.addObject("PartDesign::Pocket", "Pocket008")
body.addObject(pocket9)
pocket9.Profile = sketch10
pocket9.Length = 1
pocket9.Reversed = True

# Sketch on XY plane
sketch11 = doc.addObject("Sketcher::SketchObject", "Sketch010")
body.addObject(sketch11)
sketch11.AttachmentSupport = (doc.XY_Plane, [""])
sketch11.MapMode = "FlatFace"
sketch11.AttachmentOffset = App.Placement(App.Vector(0, 0, -33.930085), App.Rotation())
sketch11.addGeometry(Part.LineSegment(App.Vector(-29, 33, 0), App.Vector(-29, 8, 0)), False)
sketch11.addGeometry(Part.LineSegment(App.Vector(-29, 8, 0), App.Vector(42, 8, 0)), False)
sketch11.addGeometry(Part.LineSegment(App.Vector(42, 8, 0), App.Vector(42, 33, 0)), False)
sketch11.addGeometry(Part.LineSegment(App.Vector(42, 33, 0), App.Vector(-29, 33, 0)), False)
sketch11.addConstraint(Sketcher.Constraint("Coincident", 0, 2, 1, 1))
sketch11.addConstraint(Sketcher.Constraint("Coincident", 1, 2, 2, 1))
sketch11.addConstraint(Sketcher.Constraint("Coincident", 2, 2, 3, 1))
sketch11.addConstraint(Sketcher.Constraint("Coincident", 3, 2, 0, 1))
sketch11.addConstraint(Sketcher.Constraint("Vertical", 0))
sketch11.addConstraint(Sketcher.Constraint("Horizontal", 1))
sketch11.addConstraint(Sketcher.Constraint("Vertical", 2))
sketch11.addConstraint(Sketcher.Constraint("Horizontal", 3))
sketch11.addConstraint(Sketcher.Constraint("DistanceX", 1, 1, 1, 2, 71.0))
sketch11.addConstraint(Sketcher.Constraint("DistanceY", 0, 2, 0, 1, 25.0))
sketch11.addConstraint(Sketcher.Constraint("DistanceY", -1, 1, 0, 2, 8.0))
sketch11.addConstraint(Sketcher.Constraint("DistanceX", 0, 2, -1, 1, 28.970339))
pocket10 = doc.addObject("PartDesign::Pocket", "Pocket009")
body.addObject(pocket10)
pocket10.Profile = sketch11
pocket10.Type = "ThroughAll"

# Sketch on YZ plane
sketch12 = doc.addObject("Sketcher::SketchObject", "Sketch011")
body.addObject(sketch12)
sketch12.AttachmentSupport = (doc.YZ_Plane, [""])
sketch12.MapMode = "FlatFace"
sketch12.AttachmentOffset = App.Placement(App.Vector(0, 0, 50.029661), App.Rotation())
sketch12.addGeometry(Part.LineSegment(App.Vector(11, -10.2, 0), App.Vector(11, -2.7, 0)), False)
sketch12.addGeometry(Part.ArcOfCircle(Part.Circle(App.Vector(10, -2.7, 0), App.Vector(0, 0, 1), 1), math.radians(0), math.radians(180)), False)
sketch12.addGeometry(Part.LineSegment(App.Vector(9, -2.7, 0), App.Vector(9, -10.2, 0)), False)
sketch12.addGeometry(Part.ArcOfCircle(Part.Circle(App.Vector(10, -10.2, 0), App.Vector(0, 0, 1), 1), math.radians(180), math.radians(360)), False)
sketch12.addConstraint(Sketcher.Constraint("Tangent", 0, 2, 1, 1))
sketch12.addConstraint(Sketcher.Constraint("Tangent", 1, 2, 2, 1))
sketch12.addConstraint(Sketcher.Constraint("Tangent", 2, 2, 3, 1))
sketch12.addConstraint(Sketcher.Constraint("Tangent", 3, 2, 0, 1))
sketch12.addConstraint(Sketcher.Constraint("Vertical", 0))
sketch12.addConstraint(Sketcher.Constraint("Vertical", 2))
sketch12.addConstraint(Sketcher.Constraint("Radius", 1, 1.0))
sketch12.addConstraint(Sketcher.Constraint("DistanceX", -1, 1, 1, 3, 10.0))
sketch12.addConstraint(Sketcher.Constraint("DistanceY", 0, 1, 0, 2, 7.45))
sketch12.addConstraint(Sketcher.Constraint("DistanceY", 1, 3, -1, 1, 2.705085))
pocket11 = doc.addObject("PartDesign::Pocket", "Pocket010")
body.addObject(pocket11)
pocket11.Profile = sketch12
pocket11.Length = 2.5

# Sketch on YZ plane
sketch13 = doc.addObject("Sketcher::SketchObject", "Sketch012")
body.addObject(sketch13)
sketch13.AttachmentSupport = (doc.YZ_Plane, [""])
sketch13.MapMode = "FlatFace"
sketch13.AttachmentOffset = App.Placement(App.Vector(0, 0, -36.970339), App.Rotation())
sketch13.addGeometry(Part.LineSegment(App.Vector(30.1, -25.9, 0), App.Vector(27.1, -25.9, 0)), False)
sketch13.addGeometry(Part.LineSegment(App.Vector(27.1, -25.9, 0), App.Vector(27.1, -19.4, 0)), False)
sketch13.addGeometry(Part.LineSegment(App.Vector(27.1, -19.4, 0), App.Vector(30.1, -19.4, 0)), False)
sketch13.addGeometry(Part.LineSegment(App.Vector(30.1, -19.4, 0), App.Vector(30.1, -25.9, 0)), False)
sketch13.addGeometry(Part.LineSegment(App.Vector(30.1, 6.6, 0), App.Vector(27.1, 6.6, 0)), False)
sketch13.addGeometry(Part.LineSegment(App.Vector(27.1, 6.6, 0), App.Vector(27.1, 13.1, 0)), False)
sketch13.addGeometry(Part.LineSegment(App.Vector(27.1, 13.1, 0), App.Vector(30.1, 13.1, 0)), False)
sketch13.addGeometry(Part.LineSegment(App.Vector(30.1, 13.1, 0), App.Vector(30.1, 6.6, 0)), False)
sketch13.addConstraint(Sketcher.Constraint("Coincident", 0, 2, 1, 1))
sketch13.addConstraint(Sketcher.Constraint("Coincident", 1, 2, 2, 1))
sketch13.addConstraint(Sketcher.Constraint("Coincident", 2, 2, 3, 1))
sketch13.addConstraint(Sketcher.Constraint("Coincident", 3, 2, 0, 1))
sketch13.addConstraint(Sketcher.Constraint("Coincident", 4, 2, 5, 1))
sketch13.addConstraint(Sketcher.Constraint("Coincident", 5, 2, 6, 1))
sketch13.addConstraint(Sketcher.Constraint("Coincident", 6, 2, 7, 1))
sketch13.addConstraint(Sketcher.Constraint("Coincident", 7, 2, 4, 1))
sketch13.addConstraint(Sketcher.Constraint("Horizontal", 0))
sketch13.addConstraint(Sketcher.Constraint("Vertical", 1))
sketch13.addConstraint(Sketcher.Constraint("Horizontal", 2))
sketch13.addConstraint(Sketcher.Constraint("Vertical", 3))
sketch13.addConstraint(Sketcher.Constraint("Horizontal", 4))
sketch13.addConstraint(Sketcher.Constraint("Vertical", 5))
sketch13.addConstraint(Sketcher.Constraint("Horizontal", 6))
sketch13.addConstraint(Sketcher.Constraint("Vertical", 7))
sketch13.addConstraint(Sketcher.Constraint("Vertical", 1, 2, 4, 2))
sketch13.addConstraint(Sketcher.Constraint("Vertical", 3, 2, 6, 2))
sketch13.addConstraint(Sketcher.Constraint("Equal", 3, 5))
sketch13.addConstraint(Sketcher.Constraint("DistanceX", 0, 2, 0, 1, 3.0))
sketch13.addConstraint(Sketcher.Constraint("DistanceY", 1, 1, 1, 2, 6.5))
sketch13.addConstraint(Sketcher.Constraint("DistanceY", 1, 2, 4, 2, 26.0))
sketch13.addConstraint(Sketcher.Constraint("DistanceX", -1, 1, 0, 2, 27.147451))
sketch13.addConstraint(Sketcher.Constraint("DistanceY", 0, 2, -1, 1, 25.930085))
pocket12 = doc.addObject("PartDesign::Pocket", "Pocket011")
body.addObject(pocket12)
pocket12.Profile = sketch13
pocket12.Type = "ThroughAll"
pocket12.Reversed = True

# Sketch on XZ plane
sketch14 = doc.addObject("Sketcher::SketchObject", "Sketch013")
body.addObject(sketch14)
sketch14.AttachmentSupport = (doc.XZ_Plane, [""])
sketch14.MapMode = "FlatFace"
sketch14.AttachmentOffset = App.Placement(App.Vector(0, 0, -5), App.Rotation())
sketch14.addGeometry(Part.Circle(App.Vector(46.53, 2.51, 0), App.Vector(0, 0, 1), 0.45), False)
sketch14.addConstraint(Sketcher.Constraint("Diameter", 0, 0.9))
sketch14.addConstraint(Sketcher.Constraint("DistanceX", -1, 1, 0, 3, 46.529661))
sketch14.addConstraint(Sketcher.Constraint("DistanceY", -1, 1, 0, 3, 2.509915))
pocket13 = doc.addObject("PartDesign::Pocket", "Pocket012")
body.addObject(pocket13)
pocket13.Profile = sketch14
pocket13.Type = "ThroughAll"
pocket13.Reversed = True

doc.recompute()
